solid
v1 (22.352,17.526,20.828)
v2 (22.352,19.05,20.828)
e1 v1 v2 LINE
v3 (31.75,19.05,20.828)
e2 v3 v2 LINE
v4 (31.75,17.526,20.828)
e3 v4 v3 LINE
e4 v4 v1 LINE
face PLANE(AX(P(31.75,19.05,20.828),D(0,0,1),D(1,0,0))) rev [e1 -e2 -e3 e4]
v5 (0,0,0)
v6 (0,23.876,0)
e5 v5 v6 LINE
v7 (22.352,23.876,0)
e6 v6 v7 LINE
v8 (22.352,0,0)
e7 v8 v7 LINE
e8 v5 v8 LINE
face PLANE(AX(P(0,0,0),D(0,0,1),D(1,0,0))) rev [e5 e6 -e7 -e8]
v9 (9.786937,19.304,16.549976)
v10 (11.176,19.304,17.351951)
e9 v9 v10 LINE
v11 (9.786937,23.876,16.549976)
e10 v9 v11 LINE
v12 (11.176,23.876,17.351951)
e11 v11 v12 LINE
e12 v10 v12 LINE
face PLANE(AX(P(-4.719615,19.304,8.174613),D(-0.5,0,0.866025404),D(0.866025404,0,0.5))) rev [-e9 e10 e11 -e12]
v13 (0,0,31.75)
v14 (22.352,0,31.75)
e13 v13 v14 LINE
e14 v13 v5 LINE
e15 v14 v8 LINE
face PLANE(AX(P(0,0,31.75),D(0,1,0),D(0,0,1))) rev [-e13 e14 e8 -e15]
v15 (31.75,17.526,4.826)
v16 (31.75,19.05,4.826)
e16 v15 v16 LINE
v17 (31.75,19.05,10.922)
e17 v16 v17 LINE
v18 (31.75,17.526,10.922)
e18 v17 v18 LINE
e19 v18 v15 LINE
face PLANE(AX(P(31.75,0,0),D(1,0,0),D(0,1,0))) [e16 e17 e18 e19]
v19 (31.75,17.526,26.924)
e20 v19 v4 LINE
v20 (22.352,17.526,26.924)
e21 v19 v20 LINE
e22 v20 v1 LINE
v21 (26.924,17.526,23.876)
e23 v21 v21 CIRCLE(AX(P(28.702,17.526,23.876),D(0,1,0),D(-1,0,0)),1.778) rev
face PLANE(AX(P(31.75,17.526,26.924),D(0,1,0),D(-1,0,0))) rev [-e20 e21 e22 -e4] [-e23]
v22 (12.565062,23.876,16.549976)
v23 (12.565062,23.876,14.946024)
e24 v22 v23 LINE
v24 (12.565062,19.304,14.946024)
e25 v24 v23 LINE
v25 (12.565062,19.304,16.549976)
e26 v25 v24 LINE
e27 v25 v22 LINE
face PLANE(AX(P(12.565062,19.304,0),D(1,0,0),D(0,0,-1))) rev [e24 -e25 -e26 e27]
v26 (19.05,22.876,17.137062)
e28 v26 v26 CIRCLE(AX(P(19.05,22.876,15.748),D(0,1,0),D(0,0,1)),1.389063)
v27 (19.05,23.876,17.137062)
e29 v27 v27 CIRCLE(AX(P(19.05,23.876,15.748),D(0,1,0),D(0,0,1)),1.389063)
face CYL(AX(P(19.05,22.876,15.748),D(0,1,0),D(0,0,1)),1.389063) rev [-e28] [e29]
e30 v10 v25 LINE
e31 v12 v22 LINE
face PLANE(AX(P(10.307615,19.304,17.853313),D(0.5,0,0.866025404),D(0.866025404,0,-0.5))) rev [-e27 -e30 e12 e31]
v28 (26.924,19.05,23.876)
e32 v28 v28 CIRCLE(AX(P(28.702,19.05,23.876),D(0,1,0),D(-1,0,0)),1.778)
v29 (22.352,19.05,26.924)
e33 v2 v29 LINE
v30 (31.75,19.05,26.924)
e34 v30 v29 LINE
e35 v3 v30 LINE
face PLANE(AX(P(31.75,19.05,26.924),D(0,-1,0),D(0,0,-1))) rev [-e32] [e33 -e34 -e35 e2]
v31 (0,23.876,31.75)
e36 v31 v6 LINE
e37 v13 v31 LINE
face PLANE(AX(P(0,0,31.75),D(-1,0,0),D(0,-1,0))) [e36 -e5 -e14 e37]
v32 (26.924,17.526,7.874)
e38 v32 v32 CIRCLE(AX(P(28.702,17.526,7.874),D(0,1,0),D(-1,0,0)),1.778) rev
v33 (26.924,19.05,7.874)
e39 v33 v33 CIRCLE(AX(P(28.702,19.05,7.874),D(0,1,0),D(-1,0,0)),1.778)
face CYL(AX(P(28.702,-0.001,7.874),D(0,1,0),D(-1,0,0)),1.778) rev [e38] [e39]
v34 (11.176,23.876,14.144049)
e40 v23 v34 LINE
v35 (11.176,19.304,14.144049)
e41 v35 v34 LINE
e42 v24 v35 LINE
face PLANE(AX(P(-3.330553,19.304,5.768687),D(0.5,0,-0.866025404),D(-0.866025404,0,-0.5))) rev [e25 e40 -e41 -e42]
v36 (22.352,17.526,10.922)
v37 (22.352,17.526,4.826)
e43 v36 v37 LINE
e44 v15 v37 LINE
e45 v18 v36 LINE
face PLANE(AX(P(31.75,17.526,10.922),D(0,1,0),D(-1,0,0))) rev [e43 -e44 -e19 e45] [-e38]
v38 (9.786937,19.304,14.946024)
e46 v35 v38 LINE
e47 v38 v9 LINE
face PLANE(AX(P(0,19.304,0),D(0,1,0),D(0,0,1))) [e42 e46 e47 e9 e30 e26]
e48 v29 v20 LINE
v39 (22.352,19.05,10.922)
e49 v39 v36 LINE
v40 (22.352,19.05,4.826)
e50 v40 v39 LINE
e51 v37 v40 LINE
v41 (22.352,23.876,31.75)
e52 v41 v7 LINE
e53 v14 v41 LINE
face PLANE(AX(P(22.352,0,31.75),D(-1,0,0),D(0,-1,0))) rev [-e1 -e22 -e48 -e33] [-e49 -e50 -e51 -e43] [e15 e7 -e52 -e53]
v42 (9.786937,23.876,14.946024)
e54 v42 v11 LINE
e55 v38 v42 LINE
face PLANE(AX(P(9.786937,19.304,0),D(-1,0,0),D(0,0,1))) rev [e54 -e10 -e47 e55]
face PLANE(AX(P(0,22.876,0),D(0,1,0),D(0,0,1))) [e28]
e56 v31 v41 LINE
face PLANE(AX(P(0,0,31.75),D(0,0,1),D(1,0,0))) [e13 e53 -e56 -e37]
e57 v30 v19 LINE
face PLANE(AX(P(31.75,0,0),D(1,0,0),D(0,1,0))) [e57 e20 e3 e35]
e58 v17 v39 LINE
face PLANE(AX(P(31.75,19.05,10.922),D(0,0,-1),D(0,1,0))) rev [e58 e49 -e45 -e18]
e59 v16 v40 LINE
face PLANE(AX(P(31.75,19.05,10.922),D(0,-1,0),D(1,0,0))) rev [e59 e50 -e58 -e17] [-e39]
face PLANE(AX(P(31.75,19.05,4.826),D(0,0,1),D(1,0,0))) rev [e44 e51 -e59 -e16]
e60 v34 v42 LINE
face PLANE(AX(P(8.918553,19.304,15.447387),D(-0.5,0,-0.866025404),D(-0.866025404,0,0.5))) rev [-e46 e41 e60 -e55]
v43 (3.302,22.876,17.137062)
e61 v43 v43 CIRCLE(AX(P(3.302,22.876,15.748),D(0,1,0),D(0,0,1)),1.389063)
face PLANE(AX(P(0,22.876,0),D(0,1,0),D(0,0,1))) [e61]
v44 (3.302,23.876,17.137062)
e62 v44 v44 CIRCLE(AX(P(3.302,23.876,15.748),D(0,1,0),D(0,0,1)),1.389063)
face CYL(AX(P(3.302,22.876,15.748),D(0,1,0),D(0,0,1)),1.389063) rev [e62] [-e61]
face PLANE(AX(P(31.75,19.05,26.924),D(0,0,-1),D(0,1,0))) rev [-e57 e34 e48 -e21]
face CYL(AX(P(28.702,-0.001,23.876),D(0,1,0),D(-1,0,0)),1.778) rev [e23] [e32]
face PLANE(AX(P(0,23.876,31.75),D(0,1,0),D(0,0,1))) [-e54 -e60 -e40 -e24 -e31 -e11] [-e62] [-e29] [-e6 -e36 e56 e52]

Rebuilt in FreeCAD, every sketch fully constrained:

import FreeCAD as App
import Part
import Sketcher
Q = App.Units.Quantity


def add_polygon(sketch, points):
    """Adds a closed chain of lines whose ends are joined by coincident constraints."""
    first, n = sketch.GeometryCount, len(points)
    for a, b in zip(points, points[1:] + points[:1]):
        sketch.addGeometry(Part.LineSegment(App.Vector(*a, 0), App.Vector(*b, 0)), False)
    for i in range(n):
        sketch.addConstraint(Sketcher.Constraint("Coincident", first + i, 2, first + (i + 1) % n, 1))

doc = App.newDocument("Part")
body = doc.addObject("PartDesign::Body", "Body")

# Sketch on XY plane
sketch1 = doc.addObject("Sketcher::SketchObject", "Sketch")
body.addObject(sketch1)
sketch1.AttachmentSupport = (doc.XY_Plane, [""])
sketch1.MapMode = "FlatFace"
add_polygon(sketch1, [(0, 24), (0, 0), (22, 0), (22, 24)])  # lines 0-3
sketch1.addConstraint([
    Sketcher.Constraint("Vertical", 0),
    Sketcher.Constraint("Horizontal", 1),
    Sketcher.Constraint("Vertical", 2),
    Sketcher.Constraint("Horizontal", 3),
    Sketcher.Constraint("Coincident", 0, 2, -1, 1),
    Sketcher.Constraint("DistanceX", 1, 1, 1, 2, Q("0.88 in")),
    Sketcher.Constraint("DistanceY", 0, 2, 0, 1, Q("0.94 in")),
])
pad1 = doc.addObject("PartDesign::Pad", "Pad")
body.addObject(pad1)
pad1.Profile = sketch1
pad1.Length = Q("1.25 in")

# Sketch on XZ plane
sketch2 = doc.addObject("Sketcher::SketchObject", "Sketch001")
body.addObject(sketch2)
sketch2.AttachmentSupport = (doc.XZ_Plane, [""])
sketch2.MapMode = "FlatFace"
sketch2.AttachmentOffset = App.Placement(App.Vector(0, 0, -0.94 * 25.4), App.Rotation())
add_polygon(sketch2, [(9.8, 14.9), (9.8, 16.5), (11.2, 17.4), (12.6, 16.5), (12.6, 14.9), (11.2, 14.1)])  # lines 0-5
sketch2.addConstraint([
    Sketcher.Constraint("Vertical", 0),
    Sketcher.Constraint("Vertical", 3),
    Sketcher.Constraint("Parallel", 1, 4),
    Sketcher.Constraint("Parallel", 2, 5),
    Sketcher.Constraint("Horizontal", 0, 2, 2, 2),
    Sketcher.Constraint("Horizontal", 3, 2, 5, 2),
    Sketcher.Constraint("Vertical", 1, 2, 4, 2),
    Sketcher.Constraint("Angle", 1, Q("30 deg")),
    Sketcher.Constraint("DistanceX", -1, 1, 1, 2, Q("0.44 in")),
    Sketcher.Constraint("DistanceX", 0, 2, 2, 2, Q("0.109375 in")),
    Sketcher.Constraint("DistanceY", 0, 1, 0, 2, 1.603951),
    Sketcher.Constraint("DistanceY", -1, 1, 1, 2, 17.351951),
])
pocket1 = doc.addObject("PartDesign::Pocket", "Pocket")
body.addObject(pocket1)
pocket1.Profile = sketch2
pocket1.Length = Q("0.18 in")
pocket1.Reversed = True

# Sketch on XZ plane
sketch3 = doc.addObject("Sketcher::SketchObject", "Sketch002")
body.addObject(sketch3)
sketch3.AttachmentSupport = (doc.XZ_Plane, [""])
sketch3.MapMode = "FlatFace"
sketch3.AttachmentOffset = App.Placement(App.Vector(0, 0, -0.94 * 25.4), App.Rotation())
sketch3.addGeometry([
    Part.Circle(App.Vector(19.1, 15.7, 0), App.Vector(0, 0, 1), 1.4),
    Part.Circle(App.Vector(3.3, 15.7, 0), App.Vector(0, 0, 1), 1.4),
], False)
sketch3.addConstraint([
    Sketcher.Constraint("Equal", 0, 1),
    Sketcher.Constraint("Horizontal", 0, 3, 1, 3),
    Sketcher.Constraint("Diameter", 0, Q("0.109375 in")),
    Sketcher.Constraint("DistanceX", -1, 1, 0, 3, Q("0.75 in")),
    Sketcher.Constraint("DistanceY", -1, 1, 0, 3, Q("0.62 in")),
    Sketcher.Constraint("DistanceX", -1, 1, 1, 3, Q("0.13 in")),
])
pocket2 = doc.addObject("PartDesign::Pocket", "Pocket001")
body.addObject(pocket2)
pocket2.Profile = sketch3
pocket2.Length = 1
pocket2.Reversed = True

# Sketch on YZ plane
sketch4 = doc.addObject("Sketcher::SketchObject", "Sketch003")
body.addObject(sketch4)
sketch4.AttachmentSupport = (doc.YZ_Plane, [""])
sketch4.MapMode = "FlatFace"
sketch4.AttachmentOffset = App.Placement(App.Vector(0, 0, 0.88 * 25.4), App.Rotation())
add_polygon(sketch4, [(19.1, 26.9), (17.5, 26.9), (17.5, 20.8), (19.1, 20.8)])  # lines 0-3
add_polygon(sketch4, [(19.1, 10.9), (17.5, 10.9), (17.5, 4.8), (19.1, 4.8)])  # lines 4-7
sketch4.addConstraint([
    Sketcher.Constraint("Horizontal", 0),
    Sketcher.Constraint("Vertical", 1),
    Sketcher.Constraint("Horizontal", 2),
    Sketcher.Constraint("Vertical", 3),
    Sketcher.Constraint("Horizontal", 4),
    Sketcher.Constraint("Vertical", 5),
    Sketcher.Constraint("Horizontal", 6),
    Sketcher.Constraint("Vertical", 7),
    Sketcher.Constraint("Vertical", 1, 2, 4, 2),
    Sketcher.Constraint("Vertical", 3, 2, 6, 2),
    Sketcher.Constraint("Equal", 3, 5),
    Sketcher.Constraint("DistanceX", 0, 2, 0, 1, Q("0.06 in")),
    Sketcher.Constraint("DistanceY", 1, 2, 1, 1, Q("0.24 in")),
    Sketcher.Constraint("DistanceX", -1, 1, 0, 2, Q("0.69 in")),
    Sketcher.Constraint("DistanceY", -1, 1, 0, 2, Q("1.06 in")),
    Sketcher.Constraint("DistanceY", -1, 1, 4, 2, Q("0.43 in")),
])
pad2 = doc.addObject("PartDesign::Pad", "Pad001")
body.addObject(pad2)
pad2.Profile = sketch4
pad2.Length = Q("0.37 in")

# Sketch on XZ plane
sketch5 = doc.addObject("Sketcher::SketchObject", "Sketch004")
body.addObject(sketch5)
sketch5.AttachmentSupport = (doc.XZ_Plane, [""])
sketch5.MapMode = "FlatFace"
sketch5.AttachmentOffset = App.Placement(App.Vector(0, 0, -0.75 * 25.4), App.Rotation())
sketch5.addGeometry(Part.Circle(App.Vector(28.7, 23.9, 0), App.Vector(0, 0, 1), 1.8), False)
sketch5.addConstraint([
    Sketcher.Constraint("Diameter", 0, Q("0.14 in")),
    Sketcher.Constraint("DistanceX", -1, 1, 0, 3, Q("1.13 in")),
    Sketcher.Constraint("DistanceY", -1, 1, 0, 3, Q("0.94 in")),
])
pocket3 = doc.addObject("PartDesign::Pocket", "Pocket002")
body.addObject(pocket3)
pocket3.Profile = sketch5
pocket3.Type = "UpToFirst"
pocket3.Reversed = True

# Sketch on XZ plane
sketch6 = doc.addObject("Sketcher::SketchObject", "Sketch005")
body.addObject(sketch6)
sketch6.AttachmentSupport = (doc.XZ_Plane, [""])
sketch6.MapMode = "FlatFace"
sketch6.AttachmentOffset = App.Placement(App.Vector(0, 0, -0.75 * 25.4), App.Rotation())
sketch6.addGeometry(Part.Circle(App.Vector(28.7, 7.9, 0), App.Vector(0, 0, 1), 1.8), False)
sketch6.addConstraint([
    Sketcher.Constraint("Diameter", 0, Q("0.14 in")),
    Sketcher.Constraint("DistanceX", -1, 1, 0, 3, Q("1.13 in")),
    Sketcher.Constraint("DistanceY", -1, 1, 0, 3, Q("0.31 in")),
])
pocket4 = doc.addObject("PartDesign::Pocket", "Pocket003")
body.addObject(pocket4)
pocket4.Profile = sketch6
pocket4.Type = "UpToFirst"
pocket4.Reversed = True

doc.recompute()
